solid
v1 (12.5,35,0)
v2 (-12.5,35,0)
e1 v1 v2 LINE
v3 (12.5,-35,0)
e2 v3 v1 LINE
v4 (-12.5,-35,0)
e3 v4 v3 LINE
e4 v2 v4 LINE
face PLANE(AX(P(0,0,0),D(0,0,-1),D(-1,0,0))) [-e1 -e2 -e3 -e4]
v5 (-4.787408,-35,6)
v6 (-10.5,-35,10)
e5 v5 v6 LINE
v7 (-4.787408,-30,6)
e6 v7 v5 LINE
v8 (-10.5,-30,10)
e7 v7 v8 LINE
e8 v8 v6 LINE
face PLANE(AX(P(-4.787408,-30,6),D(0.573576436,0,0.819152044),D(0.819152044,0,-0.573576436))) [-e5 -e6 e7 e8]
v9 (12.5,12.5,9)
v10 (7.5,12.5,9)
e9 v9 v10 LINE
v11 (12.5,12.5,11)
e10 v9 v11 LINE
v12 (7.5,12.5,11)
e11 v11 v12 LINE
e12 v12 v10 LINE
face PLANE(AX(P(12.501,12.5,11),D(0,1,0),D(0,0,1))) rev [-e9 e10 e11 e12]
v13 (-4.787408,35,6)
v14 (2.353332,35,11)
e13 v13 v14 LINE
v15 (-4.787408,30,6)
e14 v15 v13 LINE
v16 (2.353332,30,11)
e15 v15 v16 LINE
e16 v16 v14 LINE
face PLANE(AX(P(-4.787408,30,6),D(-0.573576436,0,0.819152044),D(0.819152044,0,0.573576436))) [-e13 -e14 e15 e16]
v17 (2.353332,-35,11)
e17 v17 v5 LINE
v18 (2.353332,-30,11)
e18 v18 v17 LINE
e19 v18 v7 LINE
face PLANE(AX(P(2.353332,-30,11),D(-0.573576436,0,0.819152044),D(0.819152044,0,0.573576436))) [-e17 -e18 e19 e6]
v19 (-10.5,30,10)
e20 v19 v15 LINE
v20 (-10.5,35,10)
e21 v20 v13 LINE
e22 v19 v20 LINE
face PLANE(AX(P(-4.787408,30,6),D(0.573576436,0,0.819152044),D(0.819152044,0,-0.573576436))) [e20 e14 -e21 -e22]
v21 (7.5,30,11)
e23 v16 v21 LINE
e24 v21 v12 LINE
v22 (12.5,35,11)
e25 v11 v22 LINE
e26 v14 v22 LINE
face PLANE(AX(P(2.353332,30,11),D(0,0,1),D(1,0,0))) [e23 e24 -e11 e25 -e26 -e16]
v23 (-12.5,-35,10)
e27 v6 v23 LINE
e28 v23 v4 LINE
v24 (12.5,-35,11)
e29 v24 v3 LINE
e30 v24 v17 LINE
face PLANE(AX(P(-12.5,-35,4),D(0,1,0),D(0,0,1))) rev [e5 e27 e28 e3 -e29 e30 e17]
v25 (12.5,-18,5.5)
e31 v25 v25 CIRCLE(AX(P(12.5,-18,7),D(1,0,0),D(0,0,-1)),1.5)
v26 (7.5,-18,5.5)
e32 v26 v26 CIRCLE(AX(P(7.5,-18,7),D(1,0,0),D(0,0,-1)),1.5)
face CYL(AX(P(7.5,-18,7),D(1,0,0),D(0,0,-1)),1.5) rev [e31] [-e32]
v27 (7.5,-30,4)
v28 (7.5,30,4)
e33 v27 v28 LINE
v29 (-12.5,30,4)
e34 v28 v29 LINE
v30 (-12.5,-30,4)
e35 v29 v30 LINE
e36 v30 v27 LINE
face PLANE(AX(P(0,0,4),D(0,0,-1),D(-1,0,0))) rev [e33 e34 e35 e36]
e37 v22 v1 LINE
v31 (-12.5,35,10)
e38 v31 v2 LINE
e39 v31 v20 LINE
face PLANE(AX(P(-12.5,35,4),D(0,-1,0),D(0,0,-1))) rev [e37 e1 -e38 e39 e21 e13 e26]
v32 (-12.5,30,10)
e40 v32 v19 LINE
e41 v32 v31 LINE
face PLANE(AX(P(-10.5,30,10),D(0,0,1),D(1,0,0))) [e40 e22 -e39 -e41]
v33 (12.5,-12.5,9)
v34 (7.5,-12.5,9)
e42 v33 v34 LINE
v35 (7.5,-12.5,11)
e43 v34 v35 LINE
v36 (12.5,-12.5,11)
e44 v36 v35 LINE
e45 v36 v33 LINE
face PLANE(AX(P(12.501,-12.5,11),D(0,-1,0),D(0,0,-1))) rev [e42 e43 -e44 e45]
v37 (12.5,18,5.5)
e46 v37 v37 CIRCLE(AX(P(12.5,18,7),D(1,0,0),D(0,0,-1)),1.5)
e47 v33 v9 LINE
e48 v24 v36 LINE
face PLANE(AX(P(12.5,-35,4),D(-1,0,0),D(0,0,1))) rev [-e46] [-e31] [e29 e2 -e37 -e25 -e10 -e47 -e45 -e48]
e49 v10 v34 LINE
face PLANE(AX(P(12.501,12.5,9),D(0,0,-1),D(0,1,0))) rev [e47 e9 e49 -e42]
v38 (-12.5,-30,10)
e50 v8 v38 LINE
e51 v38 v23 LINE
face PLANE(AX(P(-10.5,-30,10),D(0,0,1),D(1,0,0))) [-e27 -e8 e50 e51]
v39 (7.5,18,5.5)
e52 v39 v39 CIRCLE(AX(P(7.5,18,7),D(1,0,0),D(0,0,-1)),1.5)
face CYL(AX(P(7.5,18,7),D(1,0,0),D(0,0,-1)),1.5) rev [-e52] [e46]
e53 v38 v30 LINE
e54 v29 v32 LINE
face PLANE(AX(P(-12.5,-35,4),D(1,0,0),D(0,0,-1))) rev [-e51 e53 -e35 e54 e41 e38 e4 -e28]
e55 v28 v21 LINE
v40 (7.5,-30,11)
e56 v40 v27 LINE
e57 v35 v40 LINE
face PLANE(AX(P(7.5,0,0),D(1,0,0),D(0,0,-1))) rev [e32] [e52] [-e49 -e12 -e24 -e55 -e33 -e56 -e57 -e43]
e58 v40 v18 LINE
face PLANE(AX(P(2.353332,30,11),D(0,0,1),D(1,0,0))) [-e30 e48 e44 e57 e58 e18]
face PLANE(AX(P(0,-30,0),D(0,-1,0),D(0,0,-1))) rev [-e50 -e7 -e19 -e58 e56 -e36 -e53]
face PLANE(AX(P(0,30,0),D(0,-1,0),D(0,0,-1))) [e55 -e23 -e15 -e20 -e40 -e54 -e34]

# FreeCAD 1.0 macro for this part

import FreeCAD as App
import Part
import Sketcher
Q = App.Units.Quantity


def add_polygon(sketch, points):
    """Adds a closed chain of lines whose ends are joined by coincident constraints."""
    first, n = sketch.GeometryCount, len(points)
    for a, b in zip(points, points[1:] + points[:1]):
        sketch.addGeometry(Part.LineSegment(App.Vector(*a, 0), App.Vector(*b, 0)), False)
    for i in range(n):
        sketch.addConstraint(Sketcher.Constraint("Coincident", first + i, 2, first + (i + 1) % n, 1))

doc = App.newDocument("Part")
body = doc.addObject("PartDesign::Body", "Body")

sketch1 = doc.addObject("Sketcher::SketchObject", "Sketch")
body.addObject(sketch1)
sketch1.AttachmentSupport = (doc.XY_Plane, [""])
sketch1.MapMode = "FlatFace"
add_polygon(sketch1, [(-12, 35), (-12, -35), (12, -35), (12, 35)])
sketch1.addConstraint([
    Sketcher.Constraint("Vertical", 0),
    Sketcher.Constraint("Horizontal", 1),
    Sketcher.Constraint("Vertical", 2),
    Sketcher.Constraint("Horizontal", 3),
    Sketcher.Constraint("Symmetric", 0, 2, 2, 2, -1, 1),
    Sketcher.Constraint("DistanceX", 1, 1, 1, 2, Q("25 mm")),
    Sketcher.Constraint("DistanceY", 0, 2, 0, 1, Q("70 mm")),
])
pad1 = doc.addObject("PartDesign::Pad", "Pad")
body.addObject(pad1)
pad1.Profile = sketch1
pad1.Length = 4

sketch2 = doc.addObject("Sketcher::SketchObject", "Sketch001")
body.addObject(sketch2)
sketch2.AttachmentSupport = (doc.XZ_Plane, [""])
sketch2.MapMode = "FlatFace"
sketch2.AttachmentOffset = App.Placement(App.Vector(0, 0, -35), App.Rotation())
add_polygon(sketch2, [(-10.5, 10), (-4.8, 6), (2.4, 11), (12.5, 11), (12.5, 4), (-12.5, 4), (-12.5, 10)])
sketch2.addConstraint([
    Sketcher.Constraint("Horizontal", 2),
    Sketcher.Constraint("Vertical", 3),
    Sketcher.Constraint("Horizontal", 4),
    Sketcher.Constraint("Vertical", 5),
    Sketcher.Constraint("Horizontal", 6),
    Sketcher.Constraint("DistanceX", 4, 2, 4, 1, Q("25 mm")),
    Sketcher.Constraint("DistanceX", 6, 1, 6, 2, Q("2 mm")),
    Sketcher.Constraint("DistanceY", 3, 2, 3, 1, Q("7 mm")),
    Sketcher.Constraint("DistanceY", 5, 1, 5, 2, Q("6 mm")),
    Sketcher.Constraint("Angle", 0, Q("-35 deg")),
    Sketcher.Constraint("Angle", 1, Q("35 deg")),
    Sketcher.Constraint("DistanceY", -1, 1, 0, 2, Q("6 mm")),
    Sketcher.Constraint("DistanceY", -1, 1, 1, 2, Q("11 mm")),
    Sketcher.Constraint("DistanceX", -1, 1, 2, 2, Q("12.5 mm")),
])
pad2 = doc.addObject("PartDesign::Pad", "Pad001")
body.addObject(pad2)
pad2.Profile = sketch2
pad2.Length = 5

sketch3 = doc.addObject("Sketcher::SketchObject", "Sketch002")
body.addObject(sketch3)
sketch3.AttachmentSupport = (doc.XZ_Plane, [""])
sketch3.MapMode = "FlatFace"
sketch3.AttachmentOffset = App.Placement(App.Vector(0, 0, 35), App.Rotation())
add_polygon(sketch3, [(2.4, 11), (-4.8, 6), (-10.5, 10), (-12.5, 10), (-12.5, 4), (12.5, 4), (12.5, 11)])
sketch3.addConstraint([
    Sketcher.Constraint("Horizontal", 2),
    Sketcher.Constraint("Vertical", 3),
    Sketcher.Constraint("Horizontal", 4),
    Sketcher.Constraint("Vertical", 5),
    Sketcher.Constraint("Horizontal", 6),
    Sketcher.Constraint("DistanceX", 2, 2, 2, 1, Q("2 mm")),
    Sketcher.Constraint("DistanceX", 4, 1, 4, 2, Q("25 mm")),
    Sketcher.Constraint("DistanceY", 3, 2, 3, 1, Q("6 mm")),
    Sketcher.Constraint("DistanceY", 5, 1, 5, 2, Q("7 mm")),
    Sketcher.Constraint("Angle", 0, Q("-145 deg")),
    Sketcher.Constraint("Angle", 1, Q("145 deg")),
    Sketcher.Constraint("DistanceY", -1, 1, 0, 2, Q("6 mm")),
    Sketcher.Constraint("DistanceY", -1, 1, 1, 2, Q("10 mm")),
    Sketcher.Constraint("DistanceX", 1, 2, -1, 1, Q("10.5 mm")),
])
pad3 = doc.addObject("PartDesign::Pad", "Pad002")
body.addObject(pad3)
pad3.Profile = sketch3
pad3.Length = 5
pad3.Reversed = True

sketch4 = doc.addObject("Sketcher::SketchObject", "Sketch003")
body.addObject(sketch4)
sketch4.AttachmentSupport = (doc.YZ_Plane, [""])
sketch4.MapMode = "FlatFace"
sketch4.AttachmentOffset = App.Placement(App.Vector(0, 0, 12.5), App.Rotation())
add_polygon(sketch4, [(30, 11), (-30, 11), (-30, 4), (30, 4)])
sketch4.addGeometry(Part.Circle(App.Vector(-18, 7, 0), App.Vector(0, 0, 1), 1.5), False)
sketch4.addGeometry(Part.Circle(App.Vector(18, 7, 0), App.Vector(0, 0, 1), 1.5), False)
sketch4.addConstraint([
    Sketcher.Constraint("Horizontal", 0),
    Sketcher.Constraint("Vertical", 1),
    Sketcher.Constraint("Horizontal", 2),
    Sketcher.Constraint("Vertical", 3),
    Sketcher.Constraint("Equal", 4, 5),
    Sketcher.Constraint("Symmetric", 4, 3, 5, 3, -2),
    Sketcher.Constraint("Diameter", 4, Q("3 mm")),
    Sketcher.Constraint("DistanceX", 0, 2, 0, 1, Q("60 mm")),
    Sketcher.Constraint("DistanceY", 1, 2, 1, 1, Q("7 mm")),
    Sketcher.Constraint("DistanceX", 4, 3, -1, 1, Q("18 mm")),
    Sketcher.Constraint("DistanceY", -1, 1, 4, 3, Q("7 mm")),
    Sketcher.Constraint("DistanceX", 0, 2, -1, 1, Q("30 mm")),
    Sketcher.Constraint("DistanceY", -1, 1, 0, 2, Q("11 mm")),
])
pad4 = doc.addObject("PartDesign::Pad", "Pad003")
body.addObject(pad4)
pad4.Profile = sketch4
pad4.Length = 5
pad4.Reversed = True

sketch5 = doc.addObject("Sketcher::SketchObject", "Sketch004")
body.addObject(sketch5)
sketch5.AttachmentSupport = (doc.YZ_Plane, [""])
sketch5.MapMode = "FlatFace"
sketch5.AttachmentOffset = App.Placement(App.Vector(0, 0, 7.5), App.Rotation())
add_polygon(sketch5, [(12.5, 9), (-12.5, 9), (-12.5, 11), (12.5, 11)])
sketch5.addConstraint([
    Sketcher.Constraint("Horizontal", 0),
    Sketcher.Constraint("Vertical", 1),
    Sketcher.Constraint("Horizontal", 2),
    Sketcher.Constraint("Vertical", 3),
    Sketcher.Constraint("DistanceX", 0, 2, 0, 1, Q("25 mm")),
    Sketcher.Constraint("DistanceY", 1, 1, 1, 2, Q("2 mm")),
    Sketcher.Constraint("DistanceY", -1, 1, 0, 2, Q("9 mm")),
    Sketcher.Constraint("DistanceX", 0, 2, -1, 1, Q("12.5 mm")),
])
pocket1 = doc.addObject("PartDesign::Pocket", "Pocket")
body.addObject(pocket1)
pocket1.Profile = sketch5
pocket1.Type = "UpToFirst"
pocket1.Reversed = True

doc.recompute()
